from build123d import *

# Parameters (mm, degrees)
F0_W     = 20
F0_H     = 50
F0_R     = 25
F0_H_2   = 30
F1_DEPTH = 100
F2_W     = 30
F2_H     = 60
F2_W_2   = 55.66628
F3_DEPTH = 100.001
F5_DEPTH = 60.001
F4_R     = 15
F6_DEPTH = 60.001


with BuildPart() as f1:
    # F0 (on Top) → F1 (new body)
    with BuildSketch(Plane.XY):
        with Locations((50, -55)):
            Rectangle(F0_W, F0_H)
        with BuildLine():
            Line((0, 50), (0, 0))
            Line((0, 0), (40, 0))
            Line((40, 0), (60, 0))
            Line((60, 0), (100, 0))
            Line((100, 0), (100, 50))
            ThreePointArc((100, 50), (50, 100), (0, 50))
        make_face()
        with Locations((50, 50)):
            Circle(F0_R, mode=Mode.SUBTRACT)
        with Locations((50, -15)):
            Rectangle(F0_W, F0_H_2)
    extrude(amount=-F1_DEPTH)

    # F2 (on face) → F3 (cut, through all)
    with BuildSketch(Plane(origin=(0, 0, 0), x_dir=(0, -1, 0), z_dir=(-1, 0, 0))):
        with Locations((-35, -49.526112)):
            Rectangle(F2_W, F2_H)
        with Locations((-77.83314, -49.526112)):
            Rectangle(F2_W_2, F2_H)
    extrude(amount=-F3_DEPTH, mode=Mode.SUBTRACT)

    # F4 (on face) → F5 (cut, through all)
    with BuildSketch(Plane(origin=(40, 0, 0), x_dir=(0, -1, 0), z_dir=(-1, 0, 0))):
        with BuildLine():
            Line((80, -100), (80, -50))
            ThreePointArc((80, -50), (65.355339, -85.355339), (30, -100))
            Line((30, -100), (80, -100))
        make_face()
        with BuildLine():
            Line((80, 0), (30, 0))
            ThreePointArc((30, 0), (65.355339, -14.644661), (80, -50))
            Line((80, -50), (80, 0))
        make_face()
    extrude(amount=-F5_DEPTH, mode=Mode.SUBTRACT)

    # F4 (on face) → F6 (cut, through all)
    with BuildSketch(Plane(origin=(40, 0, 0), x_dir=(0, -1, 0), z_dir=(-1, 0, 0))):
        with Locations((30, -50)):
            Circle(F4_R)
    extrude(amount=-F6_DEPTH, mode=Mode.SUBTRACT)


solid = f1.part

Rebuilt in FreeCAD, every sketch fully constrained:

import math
import FreeCAD as App
import Part
import Sketcher

doc = App.newDocument("Part")
body = doc.addObject("PartDesign::Body", "Body")

sketch1 = body.newObject("Sketcher::SketchObject", "Sketch")
sketch1.AttachmentSupport = (doc.getObject("XY_Plane"), [""])
sketch1.MapMode = "FlatFace"
sketch1.addGeometry([
    Part.LineSegment(App.Vector(40, -80, 0), App.Vector(60, -80, 0)),
    Part.LineSegment(App.Vector(60, -80, 0), App.Vector(60, 0, 0)),
    Part.LineSegment(App.Vector(60, 0, 0), App.Vector(100, 0, 0)),
    Part.LineSegment(App.Vector(100, 0, 0), App.Vector(100, 50, 0)),
    Part.ArcOfCircle(Part.Circle(App.Vector(50, 50, 0), App.Vector(0, 0, 1), 50), math.radians(0), math.radians(180)),
    Part.LineSegment(App.Vector(0, 50, 0), App.Vector(0, 0, 0)),
    Part.LineSegment(App.Vector(0, 0, 0), App.Vector(40, 0, 0)),
    Part.LineSegment(App.Vector(40, 0, 0), App.Vector(40, -80, 0)),
    Part.Circle(App.Vector(50, 50, 0), App.Vector(0, 0, 1), 25),
], False)
sketch1.addConstraint([
    Sketcher.Constraint("Coincident", 0, 2, 1, 1),
    Sketcher.Constraint("Coincident", 1, 2, 2, 1),
    Sketcher.Constraint("Coincident", 2, 2, 3, 1),
    Sketcher.Constraint("Tangent", 3, 2, 4, 1),
    Sketcher.Constraint("Tangent", 4, 2, 5, 1),
    Sketcher.Constraint("Coincident", 5, 2, 6, 1),
    Sketcher.Constraint("Coincident", 6, 2, 7, 1),
    Sketcher.Constraint("Coincident", 7, 2, 0, 1),
    Sketcher.Constraint("Horizontal", 0),
    Sketcher.Constraint("Vertical", 1),
    Sketcher.Constraint("Horizontal", 2),
    Sketcher.Constraint("Vertical", 3),
    Sketcher.Constraint("Vertical", 5),
    Sketcher.Constraint("Horizontal", 6),
    Sketcher.Constraint("Vertical", 7),
    Sketcher.Constraint("Coincident", 5, 2, -1, 1),
    Sketcher.Constraint("Coincident", 8, 3, 4, 3),
    Sketcher.Constraint("PointOnObject", 1, 2, -1),
    Sketcher.Constraint("Equal", 2, 6),
    Sketcher.Constraint("Diameter", 8, 50.0),
    Sketcher.Constraint("Radius", 4, 50.0),
    Sketcher.Constraint("DistanceX", 0, 1, 0, 2, 20.0),
    Sketcher.Constraint("DistanceY", 1, 1, 1, 2, 80.0),
    Sketcher.Constraint("DistanceY", 3, 1, 3, 2, 50.0),
])
pad1 = body.newObject("PartDesign::Pad", "Pad")
pad1.Profile = sketch1
pad1.Length = 100
pad1.Reversed = True

sketch2 = body.newObject("Sketcher::SketchObject", "Sketch001")
sketch2.AttachmentSupport = (doc.getObject("YZ_Plane"), [""])
sketch2.MapMode = "FlatFace"
sketch2.addGeometry([
    Part.LineSegment(App.Vector(20, -79.526112, 0), App.Vector(20, -19.526112, 0)),
    Part.LineSegment(App.Vector(20, -19.526112, 0), App.Vector(105.66628, -19.526112, 0)),
    Part.LineSegment(App.Vector(105.66628, -19.526112, 0), App.Vector(105.66628, -79.526112, 0)),
    Part.LineSegment(App.Vector(105.66628, -79.526112, 0), App.Vector(20, -79.526112, 0)),
], False)
sketch2.addConstraint([
    Sketcher.Constraint("Coincident", 0, 2, 1, 1),
    Sketcher.Constraint("Coincident", 1, 2, 2, 1),
    Sketcher.Constraint("Coincident", 2, 2, 3, 1),
    Sketcher.Constraint("Coincident", 3, 2, 0, 1),
    Sketcher.Constraint("Vertical", 0),
    Sketcher.Constraint("Horizontal", 1),
    Sketcher.Constraint("Vertical", 2),
    Sketcher.Constraint("Horizontal", 3),
    Sketcher.Constraint("DistanceY", 0, 1, 0, 2, 60.0),
    Sketcher.Constraint("DistanceX", -1, 1, 0, 2, 20.0),
    Sketcher.Constraint("DistanceX", 1, 1, 1, 2, 85.66628),
    Sketcher.Constraint("DistanceY", 2, 2, -1, 1, 79.526112),
])
pocket1 = body.newObject("PartDesign::Pocket", "Pocket")
pocket1.Profile = sketch2
pocket1.Type = "ThroughAll"
pocket1.Reversed = True

sketch3 = body.newObject("Sketcher::SketchObject", "Sketch002")
sketch3.AttachmentSupport = (doc.getObject("YZ_Plane"), [""])
sketch3.MapMode = "FlatFace"
sketch3.AttachmentOffset = App.Placement(App.Vector(0, 0, 40), App.Rotation())
sketch3.addGeometry([
    Part.LineSegment(App.Vector(-80, -100, 0), App.Vector(-80, -50, 0)),
    Part.ArcOfCircle(Part.Circle(App.Vector(-30, -50, 0), App.Vector(0, 0, 1), 50), math.radians(-180), math.radians(-90)),
    Part.LineSegment(App.Vector(-30, -100, 0), App.Vector(-80, -100, 0)),
    Part.LineSegment(App.Vector(-80, 0, 0), App.Vector(-30, 0, 0)),
    Part.ArcOfCircle(Part.Circle(App.Vector(-30, -50, 0), App.Vector(0, 0, 1), 50), math.radians(90), math.radians(180)),
    Part.LineSegment(App.Vector(-80, -50, 0), App.Vector(-80, 0, 0)),
], False)
sketch3.addConstraint([
    Sketcher.Constraint("Tangent", 0, 2, 1, 1),
    Sketcher.Constraint("Tangent", 1, 2, 2, 1),
    Sketcher.Constraint("Coincident", 2, 2, 0, 1),
    Sketcher.Constraint("Tangent", 3, 2, 4, 1),
    Sketcher.Constraint("Tangent", 4, 2, 5, 1),
    Sketcher.Constraint("Coincident", 5, 2, 3, 1),
    Sketcher.Constraint("Vertical", 0),
    Sketcher.Constraint("Horizontal", 2),
    Sketcher.Constraint("Horizontal", 3),
    Sketcher.Constraint("Vertical", 5),
    Sketcher.Constraint("Coincident", 4, 3, 1, 3),
    Sketcher.Constraint("Equal", 1, 4),
    Sketcher.Constraint("PointOnObject", 3, 2, -1),
    Sketcher.Constraint("Radius", 1, 50.0),
    Sketcher.Constraint("DistanceX", 1, 3, -1, 1, 30.0),
])
pocket2 = body.newObject("PartDesign::Pocket", "Pocket001")
pocket2.Profile = sketch3
pocket2.Type = "ThroughAll"
pocket2.Reversed = True

sketch4 = body.newObject("Sketcher::SketchObject", "Sketch003")
sketch4.AttachmentSupport = (doc.getObject("YZ_Plane"), [""])
sketch4.MapMode = "FlatFace"
sketch4.AttachmentOffset = App.Placement(App.Vector(0, 0, 40), App.Rotation())
sketch4.addGeometry(Part.Circle(App.Vector(-30, -50, 0), App.Vector(0, 0, 1), 15), False)
sketch4.addConstraint([
    Sketcher.Constraint("Diameter", 0, 30.0),
    Sketcher.Constraint("DistanceX", 0, 3, -1, 1, 30.0),
    Sketcher.Constraint("DistanceY", 0, 3, -1, 1, 50.0),
])
pocket3 = body.newObject("PartDesign::Pocket", "Pocket002")
pocket3.Profile = sketch4
pocket3.Type = "ThroughAll"
pocket3.Reversed = True

doc.recompute()
